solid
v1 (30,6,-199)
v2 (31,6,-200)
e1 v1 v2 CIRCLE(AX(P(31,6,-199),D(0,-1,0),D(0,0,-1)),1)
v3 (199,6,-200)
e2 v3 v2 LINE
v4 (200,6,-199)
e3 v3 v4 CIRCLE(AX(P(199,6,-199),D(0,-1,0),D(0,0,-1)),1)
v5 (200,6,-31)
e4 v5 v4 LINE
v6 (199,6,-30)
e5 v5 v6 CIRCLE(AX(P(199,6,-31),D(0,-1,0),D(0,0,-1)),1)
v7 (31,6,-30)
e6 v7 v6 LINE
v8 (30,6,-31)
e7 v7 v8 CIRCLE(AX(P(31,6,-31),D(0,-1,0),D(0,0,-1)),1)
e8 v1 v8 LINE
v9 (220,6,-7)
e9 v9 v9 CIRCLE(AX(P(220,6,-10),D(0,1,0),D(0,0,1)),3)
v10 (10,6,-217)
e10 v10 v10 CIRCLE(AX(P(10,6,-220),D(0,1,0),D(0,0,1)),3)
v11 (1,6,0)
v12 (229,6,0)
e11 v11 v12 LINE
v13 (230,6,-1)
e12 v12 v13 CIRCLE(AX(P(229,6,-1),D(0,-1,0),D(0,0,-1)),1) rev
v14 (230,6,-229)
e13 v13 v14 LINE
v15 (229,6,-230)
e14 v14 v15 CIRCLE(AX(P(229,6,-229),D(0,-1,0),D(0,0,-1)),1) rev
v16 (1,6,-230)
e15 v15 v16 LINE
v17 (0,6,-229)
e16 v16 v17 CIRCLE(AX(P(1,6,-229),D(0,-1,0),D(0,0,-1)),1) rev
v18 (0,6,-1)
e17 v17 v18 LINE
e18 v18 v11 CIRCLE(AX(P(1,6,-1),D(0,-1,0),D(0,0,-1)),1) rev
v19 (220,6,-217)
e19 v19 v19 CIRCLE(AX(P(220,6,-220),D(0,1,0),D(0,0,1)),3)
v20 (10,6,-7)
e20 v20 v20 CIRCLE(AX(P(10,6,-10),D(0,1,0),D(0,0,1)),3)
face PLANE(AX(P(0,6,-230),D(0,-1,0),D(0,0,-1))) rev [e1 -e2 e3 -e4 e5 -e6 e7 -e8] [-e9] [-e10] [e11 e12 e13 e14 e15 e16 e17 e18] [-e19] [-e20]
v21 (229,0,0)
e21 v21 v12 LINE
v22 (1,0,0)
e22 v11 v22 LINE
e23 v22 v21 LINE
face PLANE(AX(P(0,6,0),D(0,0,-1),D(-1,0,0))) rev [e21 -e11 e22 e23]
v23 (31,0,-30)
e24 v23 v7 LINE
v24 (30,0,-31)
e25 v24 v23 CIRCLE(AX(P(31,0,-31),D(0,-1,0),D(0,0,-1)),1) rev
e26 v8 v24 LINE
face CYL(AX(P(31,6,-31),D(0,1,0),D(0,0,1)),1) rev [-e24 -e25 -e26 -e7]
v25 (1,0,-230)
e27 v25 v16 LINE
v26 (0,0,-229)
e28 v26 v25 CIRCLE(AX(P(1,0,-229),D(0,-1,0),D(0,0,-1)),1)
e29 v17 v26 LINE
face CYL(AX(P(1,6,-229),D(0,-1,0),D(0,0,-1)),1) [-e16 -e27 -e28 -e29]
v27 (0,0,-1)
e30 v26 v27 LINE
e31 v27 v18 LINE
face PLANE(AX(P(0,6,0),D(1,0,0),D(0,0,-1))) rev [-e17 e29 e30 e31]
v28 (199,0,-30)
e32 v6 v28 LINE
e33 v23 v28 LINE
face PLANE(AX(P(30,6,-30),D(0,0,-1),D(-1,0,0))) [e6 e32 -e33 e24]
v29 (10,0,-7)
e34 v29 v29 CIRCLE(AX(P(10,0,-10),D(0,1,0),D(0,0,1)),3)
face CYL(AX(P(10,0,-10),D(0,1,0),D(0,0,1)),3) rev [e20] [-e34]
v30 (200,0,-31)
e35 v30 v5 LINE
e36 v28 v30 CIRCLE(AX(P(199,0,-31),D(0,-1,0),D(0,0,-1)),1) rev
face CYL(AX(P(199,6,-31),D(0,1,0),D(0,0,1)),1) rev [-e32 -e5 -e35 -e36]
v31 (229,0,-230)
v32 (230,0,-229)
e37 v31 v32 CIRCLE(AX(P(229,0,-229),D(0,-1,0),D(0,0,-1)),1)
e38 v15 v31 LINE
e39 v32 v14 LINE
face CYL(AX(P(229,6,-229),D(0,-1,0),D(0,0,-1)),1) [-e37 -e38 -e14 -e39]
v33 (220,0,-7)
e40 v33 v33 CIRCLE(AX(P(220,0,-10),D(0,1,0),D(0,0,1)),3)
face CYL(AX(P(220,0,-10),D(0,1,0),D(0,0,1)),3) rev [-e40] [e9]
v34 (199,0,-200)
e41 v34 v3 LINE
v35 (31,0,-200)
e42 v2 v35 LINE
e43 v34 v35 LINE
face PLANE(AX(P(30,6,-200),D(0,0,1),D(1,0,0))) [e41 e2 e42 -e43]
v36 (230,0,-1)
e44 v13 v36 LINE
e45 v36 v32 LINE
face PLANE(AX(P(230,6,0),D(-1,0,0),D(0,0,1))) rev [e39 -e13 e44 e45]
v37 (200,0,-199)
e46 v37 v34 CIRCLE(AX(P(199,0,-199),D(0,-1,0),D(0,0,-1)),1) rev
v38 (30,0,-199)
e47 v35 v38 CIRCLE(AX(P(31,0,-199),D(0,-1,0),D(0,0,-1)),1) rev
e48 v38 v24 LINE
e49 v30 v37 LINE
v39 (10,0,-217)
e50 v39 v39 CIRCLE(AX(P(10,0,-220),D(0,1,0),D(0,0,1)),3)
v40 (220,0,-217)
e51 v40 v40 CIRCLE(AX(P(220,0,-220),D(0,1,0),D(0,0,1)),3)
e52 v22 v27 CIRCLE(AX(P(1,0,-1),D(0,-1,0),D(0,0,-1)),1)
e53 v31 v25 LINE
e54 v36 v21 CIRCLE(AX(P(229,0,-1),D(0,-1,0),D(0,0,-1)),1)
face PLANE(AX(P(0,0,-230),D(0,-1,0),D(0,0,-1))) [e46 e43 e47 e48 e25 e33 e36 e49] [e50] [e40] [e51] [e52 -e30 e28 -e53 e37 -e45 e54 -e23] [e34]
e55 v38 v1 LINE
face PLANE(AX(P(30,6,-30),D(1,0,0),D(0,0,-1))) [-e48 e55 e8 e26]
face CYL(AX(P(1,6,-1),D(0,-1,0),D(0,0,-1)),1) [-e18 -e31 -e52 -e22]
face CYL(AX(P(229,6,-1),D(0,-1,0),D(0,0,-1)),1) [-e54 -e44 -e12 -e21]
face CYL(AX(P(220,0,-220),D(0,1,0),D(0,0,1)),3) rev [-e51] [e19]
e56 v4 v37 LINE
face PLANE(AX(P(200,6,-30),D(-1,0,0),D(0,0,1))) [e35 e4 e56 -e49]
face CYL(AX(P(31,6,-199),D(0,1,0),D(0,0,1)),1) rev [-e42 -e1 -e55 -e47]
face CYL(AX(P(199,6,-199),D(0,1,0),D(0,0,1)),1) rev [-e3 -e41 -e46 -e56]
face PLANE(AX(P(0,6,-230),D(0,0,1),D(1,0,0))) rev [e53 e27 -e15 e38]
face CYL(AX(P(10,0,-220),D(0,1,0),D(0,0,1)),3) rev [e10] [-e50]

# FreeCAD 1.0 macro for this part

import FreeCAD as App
import Part
import Sketcher
Q = App.Units.Quantity


def edges_at(feature, points):
    """Names of the edges that pass closest to the given points."""
    edges = feature.Shape.Edges
    near = lambda p: min(range(len(edges)), key=lambda i: edges[i].distToShape(Part.Vertex(*p))[0])
    return sorted({f"Edge{near(p) + 1}" for p in points})


def add_polygon(sketch, points):
    """Adds a closed chain of lines whose ends are joined by coincident constraints."""
    first, n = sketch.GeometryCount, len(points)
    for a, b in zip(points, points[1:] + points[:1]):
        sketch.addGeometry(Part.LineSegment(App.Vector(*a, 0), App.Vector(*b, 0)), False)
    for i in range(n):
        sketch.addConstraint(Sketcher.Constraint("Coincident", first + i, 2, first + (i + 1) % n, 1))

doc = App.newDocument("Part")
body = doc.addObject("PartDesign::Body", "Body")

sketch1 = doc.addObject("Sketcher::SketchObject", "Sketch")
body.addObject(sketch1)
sketch1.AttachmentSupport = (doc.XZ_Plane, [""])
sketch1.MapMode = "FlatFace"
add_polygon(sketch1, [(0, -230), (0, 0), (230, 0), (230, -230)])
add_polygon(sketch1, [(200, -30), (30, -30), (30, -200), (200, -200)])
sketch1.addConstraint(Sketcher.Constraint("Vertical", 0))
sketch1.addConstraint(Sketcher.Constraint("Horizontal", 1))
sketch1.addConstraint(Sketcher.Constraint("Vertical", 2))
sketch1.addConstraint(Sketcher.Constraint("Horizontal", 3))
sketch1.addConstraint(Sketcher.Constraint("Horizontal", 4))
sketch1.addConstraint(Sketcher.Constraint("Vertical", 5))
sketch1.addConstraint(Sketcher.Constraint("Horizontal", 6))
sketch1.addConstraint(Sketcher.Constraint("Vertical", 7))
sketch1.addConstraint(Sketcher.Constraint("Coincident", 0, 2, -1, 1))
sketch1.addConstraint(Sketcher.Constraint("Equal", 3, 0))
sketch1.addConstraint(Sketcher.Constraint("Equal", 6, 5))
sketch1.addConstraint(Sketcher.Constraint("DistanceX", 1, 1, 1, 2, Q("230 mm")))
sketch1.addConstraint(Sketcher.Constraint("DistanceX", 4, 2, 4, 1, Q("170 mm")))
sketch1.addConstraint(Sketcher.Constraint("DistanceX", -1, 1, 4, 2, Q("30 mm")))
sketch1.addConstraint(Sketcher.Constraint("DistanceY", 4, 2, -1, 1, Q("30 mm")))
pad1 = doc.addObject("PartDesign::Pad", "Pad")
body.addObject(pad1)
pad1.Profile = sketch1
pad1.Length = 6
pad1.Reversed = True

sketch2 = doc.addObject("Sketcher::SketchObject", "Sketch001")
body.addObject(sketch2)
sketch2.AttachmentSupport = (doc.XZ_Plane, [""])
sketch2.MapMode = "FlatFace"
sketch2.AttachmentOffset = App.Placement(App.Vector(0, 0, -6), App.Rotation())
sketch2.addGeometry(Part.Circle(App.Vector(10, -220, 0), App.Vector(0, 0, 1), 3), False)
sketch2.addGeometry(Part.Circle(App.Vector(220, -220, 0), App.Vector(0, 0, 1), 3), False)
sketch2.addGeometry(Part.Circle(App.Vector(220, -10, 0), App.Vector(0, 0, 1), 3), False)
sketch2.addGeometry(Part.Circle(App.Vector(10, -10, 0), App.Vector(0, 0, 1), 3), False)
sketch2.addConstraint(Sketcher.Constraint("Equal", 0, 1))
sketch2.addConstraint(Sketcher.Constraint("Equal", 1, 2))
sketch2.addConstraint(Sketcher.Constraint("Equal", 2, 3))
sketch2.addConstraint(Sketcher.Constraint("Horizontal", 0, 3, 1, 3))
sketch2.addConstraint(Sketcher.Constraint("Horizontal", 2, 3, 3, 3))
sketch2.addConstraint(Sketcher.Constraint("Vertical", 1, 3, 2, 3))
sketch2.addConstraint(Sketcher.Constraint("Vertical", 0, 3, 3, 3))
sketch2.addConstraint(Sketcher.Constraint("Diameter", 0, Q("6 mm")))
sketch2.addConstraint(Sketcher.Constraint("DistanceX", -1, 1, 0, 3, Q("10 mm")))
sketch2.addConstraint(Sketcher.Constraint("DistanceY", 0, 3, -1, 1, Q("220 mm")))
sketch2.addConstraint(Sketcher.Constraint("DistanceX", -1, 1, 1, 3, Q("220 mm")))
sketch2.addConstraint(Sketcher.Constraint("DistanceY", 2, 3, -1, 1, Q("10 mm")))
pocket1 = doc.addObject("PartDesign::Pocket", "Pocket")
body.addObject(pocket1)
pocket1.Profile = sketch2
pocket1.Type = "ThroughAll"
pocket1.Reversed = True
doc.recompute()

fillet = doc.addObject("PartDesign::Fillet", "Fillet")
body.addObject(fillet)
fillet.Base = (pocket1, edges_at(pocket1, [
    (30, 3, -200),
    (30, 3, -30),
    (200, 3, -30),
    (200, 3, -200),
    (0, 3, -230),
    (230, 3, -230),
    (230, 3, 0),
    (0, 3, 0),
]))
fillet.Radius = 1

doc.recompute()
